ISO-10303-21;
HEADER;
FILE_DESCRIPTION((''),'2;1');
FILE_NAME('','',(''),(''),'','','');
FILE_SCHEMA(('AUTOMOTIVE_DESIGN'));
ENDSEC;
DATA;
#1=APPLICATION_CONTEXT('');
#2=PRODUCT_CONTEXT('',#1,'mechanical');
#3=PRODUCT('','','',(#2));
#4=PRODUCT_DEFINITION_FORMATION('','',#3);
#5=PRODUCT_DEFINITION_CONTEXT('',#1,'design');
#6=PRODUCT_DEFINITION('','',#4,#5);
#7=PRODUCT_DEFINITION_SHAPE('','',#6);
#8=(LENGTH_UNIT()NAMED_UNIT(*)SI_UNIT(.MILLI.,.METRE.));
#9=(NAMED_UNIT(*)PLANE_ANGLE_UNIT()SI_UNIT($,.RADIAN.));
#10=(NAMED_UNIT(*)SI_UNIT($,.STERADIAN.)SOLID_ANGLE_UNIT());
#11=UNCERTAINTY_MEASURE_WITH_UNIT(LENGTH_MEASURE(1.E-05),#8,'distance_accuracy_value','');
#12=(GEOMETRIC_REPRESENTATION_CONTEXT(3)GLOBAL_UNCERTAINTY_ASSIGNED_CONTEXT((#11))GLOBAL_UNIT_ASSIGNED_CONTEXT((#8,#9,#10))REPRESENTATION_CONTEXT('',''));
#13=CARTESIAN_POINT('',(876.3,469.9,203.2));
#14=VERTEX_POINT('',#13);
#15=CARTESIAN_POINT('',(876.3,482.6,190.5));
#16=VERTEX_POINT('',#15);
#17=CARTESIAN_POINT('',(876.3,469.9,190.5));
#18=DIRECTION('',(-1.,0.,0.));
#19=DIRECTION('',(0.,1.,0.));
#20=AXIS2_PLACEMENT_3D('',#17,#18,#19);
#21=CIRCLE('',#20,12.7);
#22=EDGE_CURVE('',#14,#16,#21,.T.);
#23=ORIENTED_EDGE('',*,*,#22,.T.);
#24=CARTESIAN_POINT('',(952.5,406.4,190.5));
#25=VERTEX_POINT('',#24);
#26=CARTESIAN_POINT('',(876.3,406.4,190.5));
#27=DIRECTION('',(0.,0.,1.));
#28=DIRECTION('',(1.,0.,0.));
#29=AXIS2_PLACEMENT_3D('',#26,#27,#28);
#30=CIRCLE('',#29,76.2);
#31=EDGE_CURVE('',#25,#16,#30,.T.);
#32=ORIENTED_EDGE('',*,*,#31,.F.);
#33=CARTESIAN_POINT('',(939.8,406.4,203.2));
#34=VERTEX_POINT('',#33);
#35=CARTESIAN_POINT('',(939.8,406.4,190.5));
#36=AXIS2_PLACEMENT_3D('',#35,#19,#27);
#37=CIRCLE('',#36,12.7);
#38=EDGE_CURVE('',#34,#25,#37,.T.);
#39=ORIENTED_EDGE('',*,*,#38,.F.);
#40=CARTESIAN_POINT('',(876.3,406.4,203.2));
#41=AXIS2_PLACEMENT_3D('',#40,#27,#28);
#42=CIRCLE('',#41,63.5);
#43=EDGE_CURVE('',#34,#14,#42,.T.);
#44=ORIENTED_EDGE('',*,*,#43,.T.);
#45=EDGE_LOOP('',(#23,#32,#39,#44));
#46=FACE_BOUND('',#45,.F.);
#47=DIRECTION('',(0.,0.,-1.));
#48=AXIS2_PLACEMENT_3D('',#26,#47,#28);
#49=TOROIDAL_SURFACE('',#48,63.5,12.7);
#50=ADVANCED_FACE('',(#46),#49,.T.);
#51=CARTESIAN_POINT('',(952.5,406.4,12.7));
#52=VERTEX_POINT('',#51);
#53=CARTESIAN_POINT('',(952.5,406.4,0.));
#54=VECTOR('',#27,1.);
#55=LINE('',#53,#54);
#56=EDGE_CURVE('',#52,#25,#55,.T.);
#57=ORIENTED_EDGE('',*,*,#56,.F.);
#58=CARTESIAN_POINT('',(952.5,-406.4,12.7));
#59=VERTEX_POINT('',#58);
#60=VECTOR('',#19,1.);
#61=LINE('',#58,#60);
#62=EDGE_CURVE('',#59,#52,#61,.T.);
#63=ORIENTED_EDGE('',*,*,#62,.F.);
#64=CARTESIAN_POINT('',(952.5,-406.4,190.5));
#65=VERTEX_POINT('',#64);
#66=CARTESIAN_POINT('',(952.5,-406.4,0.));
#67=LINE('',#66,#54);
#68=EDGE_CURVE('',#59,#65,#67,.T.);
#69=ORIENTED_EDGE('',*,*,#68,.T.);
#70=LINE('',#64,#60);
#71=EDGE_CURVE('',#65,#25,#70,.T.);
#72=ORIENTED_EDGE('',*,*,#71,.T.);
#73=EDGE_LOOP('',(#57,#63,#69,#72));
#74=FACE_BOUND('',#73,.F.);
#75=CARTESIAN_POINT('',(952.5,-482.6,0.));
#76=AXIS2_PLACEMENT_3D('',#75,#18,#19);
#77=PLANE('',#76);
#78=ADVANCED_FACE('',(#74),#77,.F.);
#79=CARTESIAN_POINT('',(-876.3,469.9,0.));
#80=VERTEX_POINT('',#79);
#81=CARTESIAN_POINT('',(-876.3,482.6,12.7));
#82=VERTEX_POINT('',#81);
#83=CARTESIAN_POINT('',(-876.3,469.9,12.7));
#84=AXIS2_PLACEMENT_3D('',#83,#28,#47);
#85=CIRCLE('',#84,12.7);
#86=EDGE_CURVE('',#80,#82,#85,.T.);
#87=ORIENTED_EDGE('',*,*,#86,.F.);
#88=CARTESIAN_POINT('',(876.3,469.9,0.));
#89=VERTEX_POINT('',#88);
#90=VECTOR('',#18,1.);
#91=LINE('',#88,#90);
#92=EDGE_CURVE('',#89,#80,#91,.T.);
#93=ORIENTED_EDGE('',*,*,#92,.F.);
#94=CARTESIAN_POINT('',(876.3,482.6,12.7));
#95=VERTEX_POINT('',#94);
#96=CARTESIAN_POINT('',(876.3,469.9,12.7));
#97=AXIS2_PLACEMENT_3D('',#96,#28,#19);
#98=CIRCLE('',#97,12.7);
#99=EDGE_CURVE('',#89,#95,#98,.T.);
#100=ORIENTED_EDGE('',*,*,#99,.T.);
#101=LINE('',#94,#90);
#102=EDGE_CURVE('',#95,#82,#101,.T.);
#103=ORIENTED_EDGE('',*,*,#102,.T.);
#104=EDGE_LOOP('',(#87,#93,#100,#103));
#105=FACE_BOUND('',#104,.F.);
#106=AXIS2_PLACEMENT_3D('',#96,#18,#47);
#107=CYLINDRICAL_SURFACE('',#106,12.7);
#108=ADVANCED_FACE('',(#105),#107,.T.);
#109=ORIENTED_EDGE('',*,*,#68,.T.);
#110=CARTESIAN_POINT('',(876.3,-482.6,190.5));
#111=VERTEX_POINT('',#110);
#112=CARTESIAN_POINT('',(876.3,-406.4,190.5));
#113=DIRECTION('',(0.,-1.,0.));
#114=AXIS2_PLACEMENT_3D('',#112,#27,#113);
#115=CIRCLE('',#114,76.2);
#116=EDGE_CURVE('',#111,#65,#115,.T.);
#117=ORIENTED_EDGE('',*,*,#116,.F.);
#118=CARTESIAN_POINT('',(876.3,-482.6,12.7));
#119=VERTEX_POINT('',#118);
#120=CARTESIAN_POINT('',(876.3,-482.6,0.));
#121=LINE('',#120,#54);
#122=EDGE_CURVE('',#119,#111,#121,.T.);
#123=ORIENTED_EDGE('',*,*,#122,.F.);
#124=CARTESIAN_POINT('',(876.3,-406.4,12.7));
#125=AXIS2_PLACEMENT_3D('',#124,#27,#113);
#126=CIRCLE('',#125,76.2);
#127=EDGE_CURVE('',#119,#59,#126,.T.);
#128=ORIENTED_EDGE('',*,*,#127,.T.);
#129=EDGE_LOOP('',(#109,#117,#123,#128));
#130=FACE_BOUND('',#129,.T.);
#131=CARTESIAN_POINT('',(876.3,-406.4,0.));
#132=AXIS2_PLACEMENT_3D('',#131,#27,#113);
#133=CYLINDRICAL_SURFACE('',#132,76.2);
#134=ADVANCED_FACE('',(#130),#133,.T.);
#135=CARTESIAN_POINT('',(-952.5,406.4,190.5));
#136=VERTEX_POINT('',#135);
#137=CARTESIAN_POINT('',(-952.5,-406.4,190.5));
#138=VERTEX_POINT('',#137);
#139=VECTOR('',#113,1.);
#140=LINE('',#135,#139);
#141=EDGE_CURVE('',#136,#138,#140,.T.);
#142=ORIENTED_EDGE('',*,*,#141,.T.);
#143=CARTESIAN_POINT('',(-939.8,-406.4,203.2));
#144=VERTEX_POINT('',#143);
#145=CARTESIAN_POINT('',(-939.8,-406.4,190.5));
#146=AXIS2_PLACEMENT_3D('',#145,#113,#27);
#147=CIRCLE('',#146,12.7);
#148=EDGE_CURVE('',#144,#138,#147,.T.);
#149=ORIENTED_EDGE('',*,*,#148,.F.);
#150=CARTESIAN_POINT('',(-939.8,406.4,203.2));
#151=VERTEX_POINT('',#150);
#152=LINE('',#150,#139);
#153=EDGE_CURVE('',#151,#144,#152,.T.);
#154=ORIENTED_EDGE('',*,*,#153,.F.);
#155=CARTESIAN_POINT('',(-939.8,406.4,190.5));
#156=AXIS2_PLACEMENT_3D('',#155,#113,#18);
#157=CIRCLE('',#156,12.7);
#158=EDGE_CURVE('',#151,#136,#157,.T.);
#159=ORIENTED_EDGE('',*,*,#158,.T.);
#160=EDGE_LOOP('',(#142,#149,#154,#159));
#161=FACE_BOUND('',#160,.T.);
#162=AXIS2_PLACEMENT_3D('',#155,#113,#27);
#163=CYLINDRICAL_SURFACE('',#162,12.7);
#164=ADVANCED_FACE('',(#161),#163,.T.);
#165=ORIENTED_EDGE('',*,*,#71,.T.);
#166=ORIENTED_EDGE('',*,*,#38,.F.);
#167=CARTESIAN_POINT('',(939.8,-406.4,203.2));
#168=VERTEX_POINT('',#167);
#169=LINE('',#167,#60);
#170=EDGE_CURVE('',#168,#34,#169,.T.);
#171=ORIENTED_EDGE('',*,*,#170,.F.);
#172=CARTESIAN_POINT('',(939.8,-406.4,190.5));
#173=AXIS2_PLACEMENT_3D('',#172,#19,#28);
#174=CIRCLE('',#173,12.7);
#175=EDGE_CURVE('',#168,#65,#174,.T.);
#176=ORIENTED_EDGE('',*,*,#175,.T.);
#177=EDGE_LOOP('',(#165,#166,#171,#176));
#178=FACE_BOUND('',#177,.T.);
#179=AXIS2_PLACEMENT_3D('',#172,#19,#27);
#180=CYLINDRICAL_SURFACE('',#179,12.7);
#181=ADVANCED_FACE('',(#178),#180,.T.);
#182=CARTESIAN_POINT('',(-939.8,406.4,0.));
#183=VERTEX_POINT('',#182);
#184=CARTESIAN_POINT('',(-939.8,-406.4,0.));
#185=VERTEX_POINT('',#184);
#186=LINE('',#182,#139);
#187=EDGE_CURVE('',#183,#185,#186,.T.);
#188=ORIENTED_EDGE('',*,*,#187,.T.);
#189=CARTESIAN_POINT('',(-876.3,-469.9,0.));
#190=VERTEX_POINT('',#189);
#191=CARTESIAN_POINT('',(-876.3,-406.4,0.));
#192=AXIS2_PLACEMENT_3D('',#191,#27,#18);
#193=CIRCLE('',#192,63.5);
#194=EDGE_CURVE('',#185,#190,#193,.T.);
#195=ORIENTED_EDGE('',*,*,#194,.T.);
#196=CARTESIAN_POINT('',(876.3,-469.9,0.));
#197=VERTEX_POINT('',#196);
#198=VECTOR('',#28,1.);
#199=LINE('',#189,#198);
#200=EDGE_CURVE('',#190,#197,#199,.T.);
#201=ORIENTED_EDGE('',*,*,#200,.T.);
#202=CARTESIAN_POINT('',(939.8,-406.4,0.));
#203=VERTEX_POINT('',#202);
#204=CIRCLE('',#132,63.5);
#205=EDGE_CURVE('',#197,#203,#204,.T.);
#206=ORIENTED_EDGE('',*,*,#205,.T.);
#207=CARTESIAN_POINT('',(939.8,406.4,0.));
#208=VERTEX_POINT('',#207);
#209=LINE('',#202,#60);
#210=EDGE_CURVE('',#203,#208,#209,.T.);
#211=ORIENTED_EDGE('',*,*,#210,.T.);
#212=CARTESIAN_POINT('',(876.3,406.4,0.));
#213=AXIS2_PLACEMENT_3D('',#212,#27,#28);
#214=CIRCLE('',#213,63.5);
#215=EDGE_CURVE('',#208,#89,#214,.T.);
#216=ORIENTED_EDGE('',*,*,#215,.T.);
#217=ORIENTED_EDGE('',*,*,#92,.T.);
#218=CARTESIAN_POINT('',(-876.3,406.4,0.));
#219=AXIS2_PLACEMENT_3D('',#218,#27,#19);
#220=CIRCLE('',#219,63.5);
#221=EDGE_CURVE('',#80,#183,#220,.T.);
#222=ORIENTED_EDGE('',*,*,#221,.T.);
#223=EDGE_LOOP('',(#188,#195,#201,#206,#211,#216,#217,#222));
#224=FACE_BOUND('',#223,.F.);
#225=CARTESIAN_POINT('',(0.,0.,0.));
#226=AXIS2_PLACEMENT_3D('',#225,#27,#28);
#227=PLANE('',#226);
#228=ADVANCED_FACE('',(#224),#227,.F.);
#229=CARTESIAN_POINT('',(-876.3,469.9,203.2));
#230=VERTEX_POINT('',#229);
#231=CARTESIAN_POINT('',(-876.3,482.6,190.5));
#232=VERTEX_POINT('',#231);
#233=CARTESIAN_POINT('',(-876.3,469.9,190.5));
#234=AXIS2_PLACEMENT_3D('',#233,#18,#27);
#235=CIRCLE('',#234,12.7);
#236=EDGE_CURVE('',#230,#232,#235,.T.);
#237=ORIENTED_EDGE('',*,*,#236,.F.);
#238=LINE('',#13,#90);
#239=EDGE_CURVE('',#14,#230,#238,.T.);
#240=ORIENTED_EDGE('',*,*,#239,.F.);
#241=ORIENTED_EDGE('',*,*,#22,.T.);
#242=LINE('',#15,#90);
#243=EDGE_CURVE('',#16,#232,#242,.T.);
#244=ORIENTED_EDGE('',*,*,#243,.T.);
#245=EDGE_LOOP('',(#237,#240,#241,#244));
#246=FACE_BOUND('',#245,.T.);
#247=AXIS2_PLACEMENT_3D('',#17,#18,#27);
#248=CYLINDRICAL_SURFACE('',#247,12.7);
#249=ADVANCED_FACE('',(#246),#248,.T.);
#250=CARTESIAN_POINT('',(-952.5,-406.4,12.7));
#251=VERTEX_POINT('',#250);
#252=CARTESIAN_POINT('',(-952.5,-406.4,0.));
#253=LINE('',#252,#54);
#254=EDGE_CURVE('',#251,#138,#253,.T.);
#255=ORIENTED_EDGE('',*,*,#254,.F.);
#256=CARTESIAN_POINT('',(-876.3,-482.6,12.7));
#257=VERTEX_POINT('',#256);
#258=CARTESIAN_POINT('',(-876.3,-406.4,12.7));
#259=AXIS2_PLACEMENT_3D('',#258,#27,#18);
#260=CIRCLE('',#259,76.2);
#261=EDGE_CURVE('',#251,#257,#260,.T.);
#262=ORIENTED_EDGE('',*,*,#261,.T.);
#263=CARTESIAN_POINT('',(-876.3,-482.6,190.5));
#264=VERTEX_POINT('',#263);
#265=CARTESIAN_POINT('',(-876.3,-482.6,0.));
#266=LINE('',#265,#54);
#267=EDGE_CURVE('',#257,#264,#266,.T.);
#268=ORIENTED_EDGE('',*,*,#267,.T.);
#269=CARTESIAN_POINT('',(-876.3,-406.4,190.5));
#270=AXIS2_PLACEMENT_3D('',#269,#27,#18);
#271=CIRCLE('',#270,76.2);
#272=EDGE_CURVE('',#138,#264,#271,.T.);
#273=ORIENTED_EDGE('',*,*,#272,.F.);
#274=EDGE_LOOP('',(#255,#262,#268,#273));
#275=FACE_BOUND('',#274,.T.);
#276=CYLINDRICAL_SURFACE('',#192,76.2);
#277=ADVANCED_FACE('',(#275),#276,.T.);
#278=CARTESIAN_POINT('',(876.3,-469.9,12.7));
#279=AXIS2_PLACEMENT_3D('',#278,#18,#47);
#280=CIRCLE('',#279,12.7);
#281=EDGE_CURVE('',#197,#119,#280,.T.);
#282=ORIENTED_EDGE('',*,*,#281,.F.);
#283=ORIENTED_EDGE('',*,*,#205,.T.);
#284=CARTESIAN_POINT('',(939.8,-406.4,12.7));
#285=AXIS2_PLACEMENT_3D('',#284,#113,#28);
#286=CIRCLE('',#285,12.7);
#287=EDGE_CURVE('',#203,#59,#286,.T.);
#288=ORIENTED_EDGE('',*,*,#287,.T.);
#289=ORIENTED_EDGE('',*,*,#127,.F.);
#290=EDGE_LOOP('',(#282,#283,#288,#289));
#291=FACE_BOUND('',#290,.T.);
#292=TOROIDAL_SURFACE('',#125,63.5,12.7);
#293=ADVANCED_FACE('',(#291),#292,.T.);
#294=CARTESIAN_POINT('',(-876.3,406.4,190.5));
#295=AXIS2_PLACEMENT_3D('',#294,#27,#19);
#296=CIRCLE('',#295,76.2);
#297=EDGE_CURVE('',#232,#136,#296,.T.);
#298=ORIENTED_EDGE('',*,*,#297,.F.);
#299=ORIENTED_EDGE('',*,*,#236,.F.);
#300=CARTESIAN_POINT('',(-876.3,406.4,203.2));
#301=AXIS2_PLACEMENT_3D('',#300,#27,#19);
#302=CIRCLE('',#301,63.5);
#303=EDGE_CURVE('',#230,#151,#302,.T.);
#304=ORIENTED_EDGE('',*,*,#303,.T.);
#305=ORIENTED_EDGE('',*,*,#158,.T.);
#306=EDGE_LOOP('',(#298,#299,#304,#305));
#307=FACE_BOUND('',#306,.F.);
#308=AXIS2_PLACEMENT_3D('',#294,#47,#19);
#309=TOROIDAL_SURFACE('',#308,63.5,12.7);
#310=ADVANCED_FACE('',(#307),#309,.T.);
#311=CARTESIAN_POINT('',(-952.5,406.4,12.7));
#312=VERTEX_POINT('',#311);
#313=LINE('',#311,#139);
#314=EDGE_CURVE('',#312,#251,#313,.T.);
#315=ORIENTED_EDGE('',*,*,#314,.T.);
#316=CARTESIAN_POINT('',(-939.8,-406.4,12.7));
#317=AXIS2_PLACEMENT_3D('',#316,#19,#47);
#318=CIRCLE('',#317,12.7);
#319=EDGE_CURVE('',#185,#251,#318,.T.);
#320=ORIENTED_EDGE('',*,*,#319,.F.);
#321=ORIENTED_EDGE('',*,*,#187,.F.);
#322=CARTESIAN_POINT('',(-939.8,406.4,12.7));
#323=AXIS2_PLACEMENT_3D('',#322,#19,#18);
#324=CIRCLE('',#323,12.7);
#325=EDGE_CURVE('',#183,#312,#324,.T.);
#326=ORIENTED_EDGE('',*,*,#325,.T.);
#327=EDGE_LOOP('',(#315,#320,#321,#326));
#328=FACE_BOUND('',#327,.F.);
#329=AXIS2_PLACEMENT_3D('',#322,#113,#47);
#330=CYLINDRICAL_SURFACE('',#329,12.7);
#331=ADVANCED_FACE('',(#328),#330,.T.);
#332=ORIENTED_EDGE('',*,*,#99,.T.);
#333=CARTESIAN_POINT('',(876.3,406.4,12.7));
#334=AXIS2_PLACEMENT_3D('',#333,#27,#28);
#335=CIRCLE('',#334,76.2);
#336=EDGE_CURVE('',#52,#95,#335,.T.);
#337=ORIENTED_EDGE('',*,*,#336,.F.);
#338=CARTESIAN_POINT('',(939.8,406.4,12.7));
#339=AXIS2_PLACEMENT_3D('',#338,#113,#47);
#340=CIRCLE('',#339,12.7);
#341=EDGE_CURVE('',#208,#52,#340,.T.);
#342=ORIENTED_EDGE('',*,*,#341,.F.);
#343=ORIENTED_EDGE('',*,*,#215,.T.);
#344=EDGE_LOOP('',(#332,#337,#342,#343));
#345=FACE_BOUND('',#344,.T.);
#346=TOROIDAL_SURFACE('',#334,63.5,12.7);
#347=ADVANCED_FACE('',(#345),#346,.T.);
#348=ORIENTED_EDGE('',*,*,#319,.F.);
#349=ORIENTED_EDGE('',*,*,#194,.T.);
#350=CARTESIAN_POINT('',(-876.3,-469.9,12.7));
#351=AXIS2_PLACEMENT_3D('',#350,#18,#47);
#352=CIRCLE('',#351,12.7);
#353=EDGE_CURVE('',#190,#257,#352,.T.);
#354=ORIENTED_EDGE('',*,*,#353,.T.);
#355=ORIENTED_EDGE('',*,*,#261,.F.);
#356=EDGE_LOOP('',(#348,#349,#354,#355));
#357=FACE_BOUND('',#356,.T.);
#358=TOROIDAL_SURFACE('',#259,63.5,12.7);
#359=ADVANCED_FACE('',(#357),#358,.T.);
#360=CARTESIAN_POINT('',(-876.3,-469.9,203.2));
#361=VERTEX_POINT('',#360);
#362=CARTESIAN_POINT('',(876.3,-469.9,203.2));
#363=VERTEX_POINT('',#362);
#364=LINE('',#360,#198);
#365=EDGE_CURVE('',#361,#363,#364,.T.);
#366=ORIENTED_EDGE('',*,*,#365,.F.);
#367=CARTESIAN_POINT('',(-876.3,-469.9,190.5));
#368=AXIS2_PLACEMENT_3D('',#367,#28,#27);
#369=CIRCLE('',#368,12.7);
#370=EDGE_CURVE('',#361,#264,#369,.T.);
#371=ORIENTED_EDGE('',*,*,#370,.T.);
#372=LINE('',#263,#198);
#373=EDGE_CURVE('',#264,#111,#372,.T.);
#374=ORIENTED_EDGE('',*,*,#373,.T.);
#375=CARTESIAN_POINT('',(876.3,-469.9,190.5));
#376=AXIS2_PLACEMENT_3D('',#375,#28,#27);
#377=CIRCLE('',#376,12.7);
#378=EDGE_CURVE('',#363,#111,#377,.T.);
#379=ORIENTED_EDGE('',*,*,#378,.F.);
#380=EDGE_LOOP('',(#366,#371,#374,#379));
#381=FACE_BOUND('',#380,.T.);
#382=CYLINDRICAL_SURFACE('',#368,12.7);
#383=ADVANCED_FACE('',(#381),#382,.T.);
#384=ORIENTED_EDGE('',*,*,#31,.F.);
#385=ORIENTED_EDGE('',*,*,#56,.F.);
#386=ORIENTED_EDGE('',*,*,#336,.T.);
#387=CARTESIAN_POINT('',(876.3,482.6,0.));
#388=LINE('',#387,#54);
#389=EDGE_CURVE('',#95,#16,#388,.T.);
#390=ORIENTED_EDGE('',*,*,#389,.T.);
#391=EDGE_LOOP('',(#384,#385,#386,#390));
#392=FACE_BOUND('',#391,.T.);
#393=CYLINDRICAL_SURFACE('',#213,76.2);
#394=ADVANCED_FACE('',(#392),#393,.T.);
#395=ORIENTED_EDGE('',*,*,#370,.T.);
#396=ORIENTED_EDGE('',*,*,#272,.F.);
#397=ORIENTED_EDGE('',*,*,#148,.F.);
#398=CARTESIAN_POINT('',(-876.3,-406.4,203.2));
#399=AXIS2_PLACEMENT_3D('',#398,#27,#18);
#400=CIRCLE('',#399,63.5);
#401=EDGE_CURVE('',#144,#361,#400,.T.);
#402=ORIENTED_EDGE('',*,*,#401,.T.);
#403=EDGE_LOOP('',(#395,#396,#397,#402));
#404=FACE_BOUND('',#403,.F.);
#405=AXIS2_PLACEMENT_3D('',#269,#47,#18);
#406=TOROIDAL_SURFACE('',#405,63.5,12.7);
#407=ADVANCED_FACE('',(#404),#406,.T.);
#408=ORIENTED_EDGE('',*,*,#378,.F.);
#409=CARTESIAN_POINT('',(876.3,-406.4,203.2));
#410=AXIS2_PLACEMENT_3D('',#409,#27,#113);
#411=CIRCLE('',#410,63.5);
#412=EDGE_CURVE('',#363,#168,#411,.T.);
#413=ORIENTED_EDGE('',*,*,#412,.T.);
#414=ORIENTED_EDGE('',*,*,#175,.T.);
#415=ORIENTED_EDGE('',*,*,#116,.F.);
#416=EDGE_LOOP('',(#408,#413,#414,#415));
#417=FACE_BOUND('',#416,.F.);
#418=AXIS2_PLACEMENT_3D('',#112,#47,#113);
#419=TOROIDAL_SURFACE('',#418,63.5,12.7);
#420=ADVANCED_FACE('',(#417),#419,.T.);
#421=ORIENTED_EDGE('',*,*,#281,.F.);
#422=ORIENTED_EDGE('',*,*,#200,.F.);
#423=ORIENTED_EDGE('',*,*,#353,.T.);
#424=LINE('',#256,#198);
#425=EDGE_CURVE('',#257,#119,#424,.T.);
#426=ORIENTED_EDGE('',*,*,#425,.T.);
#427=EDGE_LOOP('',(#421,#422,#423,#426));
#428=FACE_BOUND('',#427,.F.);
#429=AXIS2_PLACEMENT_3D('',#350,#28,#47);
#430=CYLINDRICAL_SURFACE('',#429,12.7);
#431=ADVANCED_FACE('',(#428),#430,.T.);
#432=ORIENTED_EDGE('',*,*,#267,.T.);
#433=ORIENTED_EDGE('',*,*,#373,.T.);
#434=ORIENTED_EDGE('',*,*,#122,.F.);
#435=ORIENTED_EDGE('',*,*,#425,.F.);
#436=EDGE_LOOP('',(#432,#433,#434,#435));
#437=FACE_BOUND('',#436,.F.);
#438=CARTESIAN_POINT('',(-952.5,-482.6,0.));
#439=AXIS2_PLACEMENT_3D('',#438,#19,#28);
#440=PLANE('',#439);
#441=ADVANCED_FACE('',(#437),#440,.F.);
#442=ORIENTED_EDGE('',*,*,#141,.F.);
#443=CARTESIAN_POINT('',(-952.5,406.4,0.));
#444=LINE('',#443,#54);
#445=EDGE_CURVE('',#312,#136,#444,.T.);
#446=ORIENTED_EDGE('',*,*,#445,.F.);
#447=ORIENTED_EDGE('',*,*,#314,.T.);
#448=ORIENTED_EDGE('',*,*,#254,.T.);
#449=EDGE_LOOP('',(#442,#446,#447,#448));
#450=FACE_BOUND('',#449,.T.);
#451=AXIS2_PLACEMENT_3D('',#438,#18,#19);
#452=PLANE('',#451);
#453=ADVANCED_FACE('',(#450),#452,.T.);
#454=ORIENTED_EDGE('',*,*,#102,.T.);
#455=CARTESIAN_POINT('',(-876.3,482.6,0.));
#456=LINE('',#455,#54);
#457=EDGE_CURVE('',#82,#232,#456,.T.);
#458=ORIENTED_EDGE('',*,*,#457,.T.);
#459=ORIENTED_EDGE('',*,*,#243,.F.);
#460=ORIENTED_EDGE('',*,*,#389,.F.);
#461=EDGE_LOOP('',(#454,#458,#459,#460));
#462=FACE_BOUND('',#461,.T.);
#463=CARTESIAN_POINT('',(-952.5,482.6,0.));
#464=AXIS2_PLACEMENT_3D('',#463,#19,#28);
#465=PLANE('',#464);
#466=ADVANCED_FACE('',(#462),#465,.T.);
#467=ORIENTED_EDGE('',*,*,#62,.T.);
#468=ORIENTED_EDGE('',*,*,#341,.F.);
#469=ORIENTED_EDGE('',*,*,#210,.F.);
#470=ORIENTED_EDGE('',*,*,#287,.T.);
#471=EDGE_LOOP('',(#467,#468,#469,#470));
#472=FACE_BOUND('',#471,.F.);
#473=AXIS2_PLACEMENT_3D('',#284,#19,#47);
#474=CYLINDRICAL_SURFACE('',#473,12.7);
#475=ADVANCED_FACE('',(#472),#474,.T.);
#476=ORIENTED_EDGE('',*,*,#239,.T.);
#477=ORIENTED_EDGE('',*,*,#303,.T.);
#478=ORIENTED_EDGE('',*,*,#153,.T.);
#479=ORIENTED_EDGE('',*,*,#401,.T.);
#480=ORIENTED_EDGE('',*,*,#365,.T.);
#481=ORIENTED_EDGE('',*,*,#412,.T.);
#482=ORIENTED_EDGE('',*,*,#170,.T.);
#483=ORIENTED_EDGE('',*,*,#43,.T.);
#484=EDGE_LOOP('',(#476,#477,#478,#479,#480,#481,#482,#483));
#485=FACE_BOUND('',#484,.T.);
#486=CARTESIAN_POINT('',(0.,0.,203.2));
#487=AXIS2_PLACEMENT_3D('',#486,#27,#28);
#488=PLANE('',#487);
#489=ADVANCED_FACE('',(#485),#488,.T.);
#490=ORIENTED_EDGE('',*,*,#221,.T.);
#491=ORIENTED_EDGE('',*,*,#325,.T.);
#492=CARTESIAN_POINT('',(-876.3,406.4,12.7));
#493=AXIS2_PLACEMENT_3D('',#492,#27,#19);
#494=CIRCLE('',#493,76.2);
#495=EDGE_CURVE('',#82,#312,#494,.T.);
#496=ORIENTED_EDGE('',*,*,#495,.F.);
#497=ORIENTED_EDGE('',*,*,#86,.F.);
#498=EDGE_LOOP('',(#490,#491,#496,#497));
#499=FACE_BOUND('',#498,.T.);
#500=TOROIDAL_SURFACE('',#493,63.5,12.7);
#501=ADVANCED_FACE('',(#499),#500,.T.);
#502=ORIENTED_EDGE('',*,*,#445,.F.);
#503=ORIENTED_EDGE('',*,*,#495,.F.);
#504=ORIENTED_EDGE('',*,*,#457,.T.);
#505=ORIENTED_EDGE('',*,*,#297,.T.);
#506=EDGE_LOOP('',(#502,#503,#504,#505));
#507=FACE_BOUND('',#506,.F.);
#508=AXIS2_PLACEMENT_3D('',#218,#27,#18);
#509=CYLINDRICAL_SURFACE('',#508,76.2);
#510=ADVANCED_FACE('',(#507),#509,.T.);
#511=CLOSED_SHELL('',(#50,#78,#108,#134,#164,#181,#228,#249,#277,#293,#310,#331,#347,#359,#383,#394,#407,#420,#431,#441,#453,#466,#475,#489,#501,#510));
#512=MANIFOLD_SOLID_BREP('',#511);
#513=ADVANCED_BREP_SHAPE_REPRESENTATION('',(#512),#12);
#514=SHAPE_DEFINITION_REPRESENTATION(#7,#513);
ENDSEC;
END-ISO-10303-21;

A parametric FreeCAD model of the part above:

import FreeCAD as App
import Part
import Sketcher
from FreeCAD import Vector
Q = App.Units.Quantity


def edges_at(feature, points):
    """Names of the edges that pass closest to the given points."""
    edges = feature.Shape.Edges
    near = lambda p: min(range(len(edges)), key=lambda i: edges[i].distToShape(Part.Vertex(*p))[0])
    return sorted({f"Edge{near(p) + 1}" for p in points})

doc = App.newDocument("Part")
body = doc.addObject("PartDesign::Body", "Body")

# Sketch on XY plane
sketch1 = body.newObject("Sketcher::SketchObject", "Sketch")
sketch1.AttachmentSupport = (doc.getObject("XY_Plane"), [""])
sketch1.MapMode = "FlatFace"
sketch1.addGeometry([
    Part.LineSegment(Vector(-952, 483, 0), Vector(-952, -483, 0)),
    Part.LineSegment(Vector(-952, -483, 0), Vector(952, -483, 0)),
    Part.LineSegment(Vector(952, -483, 0), Vector(952, 483, 0)),
    Part.LineSegment(Vector(952, 483, 0), Vector(-952, 483, 0)),
], False)
sketch1.addConstraint([
    Sketcher.Constraint("Coincident", 0, 2, 1, 1),
    Sketcher.Constraint("Coincident", 1, 2, 2, 1),
    Sketcher.Constraint("Coincident", 2, 2, 3, 1),
    Sketcher.Constraint("Coincident", 3, 2, 0, 1),
    Sketcher.Constraint("Vertical", 0),
    Sketcher.Constraint("Horizontal", 1),
    Sketcher.Constraint("Vertical", 2),
    Sketcher.Constraint("Horizontal", 3),
    Sketcher.Constraint("Symmetric", 0, 2, 2, 2, -1, 1),
    Sketcher.Constraint("DistanceX", 1, 1, 1, 2, Q("75 in")),
    Sketcher.Constraint("DistanceY", 0, 2, 0, 1, Q("38 in")),
])
pad1 = body.newObject("PartDesign::Pad", "Pad")
pad1.Profile = sketch1
pad1.Length = Q("8 in")
doc.recompute()

fillet = body.newObject("PartDesign::Fillet", "Fillet")
fillet.Base = (pad1, edges_at(pad1, [
    (-952.5, -482.6, 101.6),
    (952.5, -482.6, 101.6),
    (952.5, 482.6, 101.6),
    (-952.5, 482.6, 101.6),
]))
fillet.Radius = Q("3 in")
doc.recompute()

fillet2 = body.newObject("PartDesign::Fillet", "Fillet001")
fillet2.Base = (fillet, edges_at(fillet, [(0, -482.6, 203.2), (0, -482.6, 0)]))
fillet2.Radius = Q("0.5 in")

doc.recompute()
